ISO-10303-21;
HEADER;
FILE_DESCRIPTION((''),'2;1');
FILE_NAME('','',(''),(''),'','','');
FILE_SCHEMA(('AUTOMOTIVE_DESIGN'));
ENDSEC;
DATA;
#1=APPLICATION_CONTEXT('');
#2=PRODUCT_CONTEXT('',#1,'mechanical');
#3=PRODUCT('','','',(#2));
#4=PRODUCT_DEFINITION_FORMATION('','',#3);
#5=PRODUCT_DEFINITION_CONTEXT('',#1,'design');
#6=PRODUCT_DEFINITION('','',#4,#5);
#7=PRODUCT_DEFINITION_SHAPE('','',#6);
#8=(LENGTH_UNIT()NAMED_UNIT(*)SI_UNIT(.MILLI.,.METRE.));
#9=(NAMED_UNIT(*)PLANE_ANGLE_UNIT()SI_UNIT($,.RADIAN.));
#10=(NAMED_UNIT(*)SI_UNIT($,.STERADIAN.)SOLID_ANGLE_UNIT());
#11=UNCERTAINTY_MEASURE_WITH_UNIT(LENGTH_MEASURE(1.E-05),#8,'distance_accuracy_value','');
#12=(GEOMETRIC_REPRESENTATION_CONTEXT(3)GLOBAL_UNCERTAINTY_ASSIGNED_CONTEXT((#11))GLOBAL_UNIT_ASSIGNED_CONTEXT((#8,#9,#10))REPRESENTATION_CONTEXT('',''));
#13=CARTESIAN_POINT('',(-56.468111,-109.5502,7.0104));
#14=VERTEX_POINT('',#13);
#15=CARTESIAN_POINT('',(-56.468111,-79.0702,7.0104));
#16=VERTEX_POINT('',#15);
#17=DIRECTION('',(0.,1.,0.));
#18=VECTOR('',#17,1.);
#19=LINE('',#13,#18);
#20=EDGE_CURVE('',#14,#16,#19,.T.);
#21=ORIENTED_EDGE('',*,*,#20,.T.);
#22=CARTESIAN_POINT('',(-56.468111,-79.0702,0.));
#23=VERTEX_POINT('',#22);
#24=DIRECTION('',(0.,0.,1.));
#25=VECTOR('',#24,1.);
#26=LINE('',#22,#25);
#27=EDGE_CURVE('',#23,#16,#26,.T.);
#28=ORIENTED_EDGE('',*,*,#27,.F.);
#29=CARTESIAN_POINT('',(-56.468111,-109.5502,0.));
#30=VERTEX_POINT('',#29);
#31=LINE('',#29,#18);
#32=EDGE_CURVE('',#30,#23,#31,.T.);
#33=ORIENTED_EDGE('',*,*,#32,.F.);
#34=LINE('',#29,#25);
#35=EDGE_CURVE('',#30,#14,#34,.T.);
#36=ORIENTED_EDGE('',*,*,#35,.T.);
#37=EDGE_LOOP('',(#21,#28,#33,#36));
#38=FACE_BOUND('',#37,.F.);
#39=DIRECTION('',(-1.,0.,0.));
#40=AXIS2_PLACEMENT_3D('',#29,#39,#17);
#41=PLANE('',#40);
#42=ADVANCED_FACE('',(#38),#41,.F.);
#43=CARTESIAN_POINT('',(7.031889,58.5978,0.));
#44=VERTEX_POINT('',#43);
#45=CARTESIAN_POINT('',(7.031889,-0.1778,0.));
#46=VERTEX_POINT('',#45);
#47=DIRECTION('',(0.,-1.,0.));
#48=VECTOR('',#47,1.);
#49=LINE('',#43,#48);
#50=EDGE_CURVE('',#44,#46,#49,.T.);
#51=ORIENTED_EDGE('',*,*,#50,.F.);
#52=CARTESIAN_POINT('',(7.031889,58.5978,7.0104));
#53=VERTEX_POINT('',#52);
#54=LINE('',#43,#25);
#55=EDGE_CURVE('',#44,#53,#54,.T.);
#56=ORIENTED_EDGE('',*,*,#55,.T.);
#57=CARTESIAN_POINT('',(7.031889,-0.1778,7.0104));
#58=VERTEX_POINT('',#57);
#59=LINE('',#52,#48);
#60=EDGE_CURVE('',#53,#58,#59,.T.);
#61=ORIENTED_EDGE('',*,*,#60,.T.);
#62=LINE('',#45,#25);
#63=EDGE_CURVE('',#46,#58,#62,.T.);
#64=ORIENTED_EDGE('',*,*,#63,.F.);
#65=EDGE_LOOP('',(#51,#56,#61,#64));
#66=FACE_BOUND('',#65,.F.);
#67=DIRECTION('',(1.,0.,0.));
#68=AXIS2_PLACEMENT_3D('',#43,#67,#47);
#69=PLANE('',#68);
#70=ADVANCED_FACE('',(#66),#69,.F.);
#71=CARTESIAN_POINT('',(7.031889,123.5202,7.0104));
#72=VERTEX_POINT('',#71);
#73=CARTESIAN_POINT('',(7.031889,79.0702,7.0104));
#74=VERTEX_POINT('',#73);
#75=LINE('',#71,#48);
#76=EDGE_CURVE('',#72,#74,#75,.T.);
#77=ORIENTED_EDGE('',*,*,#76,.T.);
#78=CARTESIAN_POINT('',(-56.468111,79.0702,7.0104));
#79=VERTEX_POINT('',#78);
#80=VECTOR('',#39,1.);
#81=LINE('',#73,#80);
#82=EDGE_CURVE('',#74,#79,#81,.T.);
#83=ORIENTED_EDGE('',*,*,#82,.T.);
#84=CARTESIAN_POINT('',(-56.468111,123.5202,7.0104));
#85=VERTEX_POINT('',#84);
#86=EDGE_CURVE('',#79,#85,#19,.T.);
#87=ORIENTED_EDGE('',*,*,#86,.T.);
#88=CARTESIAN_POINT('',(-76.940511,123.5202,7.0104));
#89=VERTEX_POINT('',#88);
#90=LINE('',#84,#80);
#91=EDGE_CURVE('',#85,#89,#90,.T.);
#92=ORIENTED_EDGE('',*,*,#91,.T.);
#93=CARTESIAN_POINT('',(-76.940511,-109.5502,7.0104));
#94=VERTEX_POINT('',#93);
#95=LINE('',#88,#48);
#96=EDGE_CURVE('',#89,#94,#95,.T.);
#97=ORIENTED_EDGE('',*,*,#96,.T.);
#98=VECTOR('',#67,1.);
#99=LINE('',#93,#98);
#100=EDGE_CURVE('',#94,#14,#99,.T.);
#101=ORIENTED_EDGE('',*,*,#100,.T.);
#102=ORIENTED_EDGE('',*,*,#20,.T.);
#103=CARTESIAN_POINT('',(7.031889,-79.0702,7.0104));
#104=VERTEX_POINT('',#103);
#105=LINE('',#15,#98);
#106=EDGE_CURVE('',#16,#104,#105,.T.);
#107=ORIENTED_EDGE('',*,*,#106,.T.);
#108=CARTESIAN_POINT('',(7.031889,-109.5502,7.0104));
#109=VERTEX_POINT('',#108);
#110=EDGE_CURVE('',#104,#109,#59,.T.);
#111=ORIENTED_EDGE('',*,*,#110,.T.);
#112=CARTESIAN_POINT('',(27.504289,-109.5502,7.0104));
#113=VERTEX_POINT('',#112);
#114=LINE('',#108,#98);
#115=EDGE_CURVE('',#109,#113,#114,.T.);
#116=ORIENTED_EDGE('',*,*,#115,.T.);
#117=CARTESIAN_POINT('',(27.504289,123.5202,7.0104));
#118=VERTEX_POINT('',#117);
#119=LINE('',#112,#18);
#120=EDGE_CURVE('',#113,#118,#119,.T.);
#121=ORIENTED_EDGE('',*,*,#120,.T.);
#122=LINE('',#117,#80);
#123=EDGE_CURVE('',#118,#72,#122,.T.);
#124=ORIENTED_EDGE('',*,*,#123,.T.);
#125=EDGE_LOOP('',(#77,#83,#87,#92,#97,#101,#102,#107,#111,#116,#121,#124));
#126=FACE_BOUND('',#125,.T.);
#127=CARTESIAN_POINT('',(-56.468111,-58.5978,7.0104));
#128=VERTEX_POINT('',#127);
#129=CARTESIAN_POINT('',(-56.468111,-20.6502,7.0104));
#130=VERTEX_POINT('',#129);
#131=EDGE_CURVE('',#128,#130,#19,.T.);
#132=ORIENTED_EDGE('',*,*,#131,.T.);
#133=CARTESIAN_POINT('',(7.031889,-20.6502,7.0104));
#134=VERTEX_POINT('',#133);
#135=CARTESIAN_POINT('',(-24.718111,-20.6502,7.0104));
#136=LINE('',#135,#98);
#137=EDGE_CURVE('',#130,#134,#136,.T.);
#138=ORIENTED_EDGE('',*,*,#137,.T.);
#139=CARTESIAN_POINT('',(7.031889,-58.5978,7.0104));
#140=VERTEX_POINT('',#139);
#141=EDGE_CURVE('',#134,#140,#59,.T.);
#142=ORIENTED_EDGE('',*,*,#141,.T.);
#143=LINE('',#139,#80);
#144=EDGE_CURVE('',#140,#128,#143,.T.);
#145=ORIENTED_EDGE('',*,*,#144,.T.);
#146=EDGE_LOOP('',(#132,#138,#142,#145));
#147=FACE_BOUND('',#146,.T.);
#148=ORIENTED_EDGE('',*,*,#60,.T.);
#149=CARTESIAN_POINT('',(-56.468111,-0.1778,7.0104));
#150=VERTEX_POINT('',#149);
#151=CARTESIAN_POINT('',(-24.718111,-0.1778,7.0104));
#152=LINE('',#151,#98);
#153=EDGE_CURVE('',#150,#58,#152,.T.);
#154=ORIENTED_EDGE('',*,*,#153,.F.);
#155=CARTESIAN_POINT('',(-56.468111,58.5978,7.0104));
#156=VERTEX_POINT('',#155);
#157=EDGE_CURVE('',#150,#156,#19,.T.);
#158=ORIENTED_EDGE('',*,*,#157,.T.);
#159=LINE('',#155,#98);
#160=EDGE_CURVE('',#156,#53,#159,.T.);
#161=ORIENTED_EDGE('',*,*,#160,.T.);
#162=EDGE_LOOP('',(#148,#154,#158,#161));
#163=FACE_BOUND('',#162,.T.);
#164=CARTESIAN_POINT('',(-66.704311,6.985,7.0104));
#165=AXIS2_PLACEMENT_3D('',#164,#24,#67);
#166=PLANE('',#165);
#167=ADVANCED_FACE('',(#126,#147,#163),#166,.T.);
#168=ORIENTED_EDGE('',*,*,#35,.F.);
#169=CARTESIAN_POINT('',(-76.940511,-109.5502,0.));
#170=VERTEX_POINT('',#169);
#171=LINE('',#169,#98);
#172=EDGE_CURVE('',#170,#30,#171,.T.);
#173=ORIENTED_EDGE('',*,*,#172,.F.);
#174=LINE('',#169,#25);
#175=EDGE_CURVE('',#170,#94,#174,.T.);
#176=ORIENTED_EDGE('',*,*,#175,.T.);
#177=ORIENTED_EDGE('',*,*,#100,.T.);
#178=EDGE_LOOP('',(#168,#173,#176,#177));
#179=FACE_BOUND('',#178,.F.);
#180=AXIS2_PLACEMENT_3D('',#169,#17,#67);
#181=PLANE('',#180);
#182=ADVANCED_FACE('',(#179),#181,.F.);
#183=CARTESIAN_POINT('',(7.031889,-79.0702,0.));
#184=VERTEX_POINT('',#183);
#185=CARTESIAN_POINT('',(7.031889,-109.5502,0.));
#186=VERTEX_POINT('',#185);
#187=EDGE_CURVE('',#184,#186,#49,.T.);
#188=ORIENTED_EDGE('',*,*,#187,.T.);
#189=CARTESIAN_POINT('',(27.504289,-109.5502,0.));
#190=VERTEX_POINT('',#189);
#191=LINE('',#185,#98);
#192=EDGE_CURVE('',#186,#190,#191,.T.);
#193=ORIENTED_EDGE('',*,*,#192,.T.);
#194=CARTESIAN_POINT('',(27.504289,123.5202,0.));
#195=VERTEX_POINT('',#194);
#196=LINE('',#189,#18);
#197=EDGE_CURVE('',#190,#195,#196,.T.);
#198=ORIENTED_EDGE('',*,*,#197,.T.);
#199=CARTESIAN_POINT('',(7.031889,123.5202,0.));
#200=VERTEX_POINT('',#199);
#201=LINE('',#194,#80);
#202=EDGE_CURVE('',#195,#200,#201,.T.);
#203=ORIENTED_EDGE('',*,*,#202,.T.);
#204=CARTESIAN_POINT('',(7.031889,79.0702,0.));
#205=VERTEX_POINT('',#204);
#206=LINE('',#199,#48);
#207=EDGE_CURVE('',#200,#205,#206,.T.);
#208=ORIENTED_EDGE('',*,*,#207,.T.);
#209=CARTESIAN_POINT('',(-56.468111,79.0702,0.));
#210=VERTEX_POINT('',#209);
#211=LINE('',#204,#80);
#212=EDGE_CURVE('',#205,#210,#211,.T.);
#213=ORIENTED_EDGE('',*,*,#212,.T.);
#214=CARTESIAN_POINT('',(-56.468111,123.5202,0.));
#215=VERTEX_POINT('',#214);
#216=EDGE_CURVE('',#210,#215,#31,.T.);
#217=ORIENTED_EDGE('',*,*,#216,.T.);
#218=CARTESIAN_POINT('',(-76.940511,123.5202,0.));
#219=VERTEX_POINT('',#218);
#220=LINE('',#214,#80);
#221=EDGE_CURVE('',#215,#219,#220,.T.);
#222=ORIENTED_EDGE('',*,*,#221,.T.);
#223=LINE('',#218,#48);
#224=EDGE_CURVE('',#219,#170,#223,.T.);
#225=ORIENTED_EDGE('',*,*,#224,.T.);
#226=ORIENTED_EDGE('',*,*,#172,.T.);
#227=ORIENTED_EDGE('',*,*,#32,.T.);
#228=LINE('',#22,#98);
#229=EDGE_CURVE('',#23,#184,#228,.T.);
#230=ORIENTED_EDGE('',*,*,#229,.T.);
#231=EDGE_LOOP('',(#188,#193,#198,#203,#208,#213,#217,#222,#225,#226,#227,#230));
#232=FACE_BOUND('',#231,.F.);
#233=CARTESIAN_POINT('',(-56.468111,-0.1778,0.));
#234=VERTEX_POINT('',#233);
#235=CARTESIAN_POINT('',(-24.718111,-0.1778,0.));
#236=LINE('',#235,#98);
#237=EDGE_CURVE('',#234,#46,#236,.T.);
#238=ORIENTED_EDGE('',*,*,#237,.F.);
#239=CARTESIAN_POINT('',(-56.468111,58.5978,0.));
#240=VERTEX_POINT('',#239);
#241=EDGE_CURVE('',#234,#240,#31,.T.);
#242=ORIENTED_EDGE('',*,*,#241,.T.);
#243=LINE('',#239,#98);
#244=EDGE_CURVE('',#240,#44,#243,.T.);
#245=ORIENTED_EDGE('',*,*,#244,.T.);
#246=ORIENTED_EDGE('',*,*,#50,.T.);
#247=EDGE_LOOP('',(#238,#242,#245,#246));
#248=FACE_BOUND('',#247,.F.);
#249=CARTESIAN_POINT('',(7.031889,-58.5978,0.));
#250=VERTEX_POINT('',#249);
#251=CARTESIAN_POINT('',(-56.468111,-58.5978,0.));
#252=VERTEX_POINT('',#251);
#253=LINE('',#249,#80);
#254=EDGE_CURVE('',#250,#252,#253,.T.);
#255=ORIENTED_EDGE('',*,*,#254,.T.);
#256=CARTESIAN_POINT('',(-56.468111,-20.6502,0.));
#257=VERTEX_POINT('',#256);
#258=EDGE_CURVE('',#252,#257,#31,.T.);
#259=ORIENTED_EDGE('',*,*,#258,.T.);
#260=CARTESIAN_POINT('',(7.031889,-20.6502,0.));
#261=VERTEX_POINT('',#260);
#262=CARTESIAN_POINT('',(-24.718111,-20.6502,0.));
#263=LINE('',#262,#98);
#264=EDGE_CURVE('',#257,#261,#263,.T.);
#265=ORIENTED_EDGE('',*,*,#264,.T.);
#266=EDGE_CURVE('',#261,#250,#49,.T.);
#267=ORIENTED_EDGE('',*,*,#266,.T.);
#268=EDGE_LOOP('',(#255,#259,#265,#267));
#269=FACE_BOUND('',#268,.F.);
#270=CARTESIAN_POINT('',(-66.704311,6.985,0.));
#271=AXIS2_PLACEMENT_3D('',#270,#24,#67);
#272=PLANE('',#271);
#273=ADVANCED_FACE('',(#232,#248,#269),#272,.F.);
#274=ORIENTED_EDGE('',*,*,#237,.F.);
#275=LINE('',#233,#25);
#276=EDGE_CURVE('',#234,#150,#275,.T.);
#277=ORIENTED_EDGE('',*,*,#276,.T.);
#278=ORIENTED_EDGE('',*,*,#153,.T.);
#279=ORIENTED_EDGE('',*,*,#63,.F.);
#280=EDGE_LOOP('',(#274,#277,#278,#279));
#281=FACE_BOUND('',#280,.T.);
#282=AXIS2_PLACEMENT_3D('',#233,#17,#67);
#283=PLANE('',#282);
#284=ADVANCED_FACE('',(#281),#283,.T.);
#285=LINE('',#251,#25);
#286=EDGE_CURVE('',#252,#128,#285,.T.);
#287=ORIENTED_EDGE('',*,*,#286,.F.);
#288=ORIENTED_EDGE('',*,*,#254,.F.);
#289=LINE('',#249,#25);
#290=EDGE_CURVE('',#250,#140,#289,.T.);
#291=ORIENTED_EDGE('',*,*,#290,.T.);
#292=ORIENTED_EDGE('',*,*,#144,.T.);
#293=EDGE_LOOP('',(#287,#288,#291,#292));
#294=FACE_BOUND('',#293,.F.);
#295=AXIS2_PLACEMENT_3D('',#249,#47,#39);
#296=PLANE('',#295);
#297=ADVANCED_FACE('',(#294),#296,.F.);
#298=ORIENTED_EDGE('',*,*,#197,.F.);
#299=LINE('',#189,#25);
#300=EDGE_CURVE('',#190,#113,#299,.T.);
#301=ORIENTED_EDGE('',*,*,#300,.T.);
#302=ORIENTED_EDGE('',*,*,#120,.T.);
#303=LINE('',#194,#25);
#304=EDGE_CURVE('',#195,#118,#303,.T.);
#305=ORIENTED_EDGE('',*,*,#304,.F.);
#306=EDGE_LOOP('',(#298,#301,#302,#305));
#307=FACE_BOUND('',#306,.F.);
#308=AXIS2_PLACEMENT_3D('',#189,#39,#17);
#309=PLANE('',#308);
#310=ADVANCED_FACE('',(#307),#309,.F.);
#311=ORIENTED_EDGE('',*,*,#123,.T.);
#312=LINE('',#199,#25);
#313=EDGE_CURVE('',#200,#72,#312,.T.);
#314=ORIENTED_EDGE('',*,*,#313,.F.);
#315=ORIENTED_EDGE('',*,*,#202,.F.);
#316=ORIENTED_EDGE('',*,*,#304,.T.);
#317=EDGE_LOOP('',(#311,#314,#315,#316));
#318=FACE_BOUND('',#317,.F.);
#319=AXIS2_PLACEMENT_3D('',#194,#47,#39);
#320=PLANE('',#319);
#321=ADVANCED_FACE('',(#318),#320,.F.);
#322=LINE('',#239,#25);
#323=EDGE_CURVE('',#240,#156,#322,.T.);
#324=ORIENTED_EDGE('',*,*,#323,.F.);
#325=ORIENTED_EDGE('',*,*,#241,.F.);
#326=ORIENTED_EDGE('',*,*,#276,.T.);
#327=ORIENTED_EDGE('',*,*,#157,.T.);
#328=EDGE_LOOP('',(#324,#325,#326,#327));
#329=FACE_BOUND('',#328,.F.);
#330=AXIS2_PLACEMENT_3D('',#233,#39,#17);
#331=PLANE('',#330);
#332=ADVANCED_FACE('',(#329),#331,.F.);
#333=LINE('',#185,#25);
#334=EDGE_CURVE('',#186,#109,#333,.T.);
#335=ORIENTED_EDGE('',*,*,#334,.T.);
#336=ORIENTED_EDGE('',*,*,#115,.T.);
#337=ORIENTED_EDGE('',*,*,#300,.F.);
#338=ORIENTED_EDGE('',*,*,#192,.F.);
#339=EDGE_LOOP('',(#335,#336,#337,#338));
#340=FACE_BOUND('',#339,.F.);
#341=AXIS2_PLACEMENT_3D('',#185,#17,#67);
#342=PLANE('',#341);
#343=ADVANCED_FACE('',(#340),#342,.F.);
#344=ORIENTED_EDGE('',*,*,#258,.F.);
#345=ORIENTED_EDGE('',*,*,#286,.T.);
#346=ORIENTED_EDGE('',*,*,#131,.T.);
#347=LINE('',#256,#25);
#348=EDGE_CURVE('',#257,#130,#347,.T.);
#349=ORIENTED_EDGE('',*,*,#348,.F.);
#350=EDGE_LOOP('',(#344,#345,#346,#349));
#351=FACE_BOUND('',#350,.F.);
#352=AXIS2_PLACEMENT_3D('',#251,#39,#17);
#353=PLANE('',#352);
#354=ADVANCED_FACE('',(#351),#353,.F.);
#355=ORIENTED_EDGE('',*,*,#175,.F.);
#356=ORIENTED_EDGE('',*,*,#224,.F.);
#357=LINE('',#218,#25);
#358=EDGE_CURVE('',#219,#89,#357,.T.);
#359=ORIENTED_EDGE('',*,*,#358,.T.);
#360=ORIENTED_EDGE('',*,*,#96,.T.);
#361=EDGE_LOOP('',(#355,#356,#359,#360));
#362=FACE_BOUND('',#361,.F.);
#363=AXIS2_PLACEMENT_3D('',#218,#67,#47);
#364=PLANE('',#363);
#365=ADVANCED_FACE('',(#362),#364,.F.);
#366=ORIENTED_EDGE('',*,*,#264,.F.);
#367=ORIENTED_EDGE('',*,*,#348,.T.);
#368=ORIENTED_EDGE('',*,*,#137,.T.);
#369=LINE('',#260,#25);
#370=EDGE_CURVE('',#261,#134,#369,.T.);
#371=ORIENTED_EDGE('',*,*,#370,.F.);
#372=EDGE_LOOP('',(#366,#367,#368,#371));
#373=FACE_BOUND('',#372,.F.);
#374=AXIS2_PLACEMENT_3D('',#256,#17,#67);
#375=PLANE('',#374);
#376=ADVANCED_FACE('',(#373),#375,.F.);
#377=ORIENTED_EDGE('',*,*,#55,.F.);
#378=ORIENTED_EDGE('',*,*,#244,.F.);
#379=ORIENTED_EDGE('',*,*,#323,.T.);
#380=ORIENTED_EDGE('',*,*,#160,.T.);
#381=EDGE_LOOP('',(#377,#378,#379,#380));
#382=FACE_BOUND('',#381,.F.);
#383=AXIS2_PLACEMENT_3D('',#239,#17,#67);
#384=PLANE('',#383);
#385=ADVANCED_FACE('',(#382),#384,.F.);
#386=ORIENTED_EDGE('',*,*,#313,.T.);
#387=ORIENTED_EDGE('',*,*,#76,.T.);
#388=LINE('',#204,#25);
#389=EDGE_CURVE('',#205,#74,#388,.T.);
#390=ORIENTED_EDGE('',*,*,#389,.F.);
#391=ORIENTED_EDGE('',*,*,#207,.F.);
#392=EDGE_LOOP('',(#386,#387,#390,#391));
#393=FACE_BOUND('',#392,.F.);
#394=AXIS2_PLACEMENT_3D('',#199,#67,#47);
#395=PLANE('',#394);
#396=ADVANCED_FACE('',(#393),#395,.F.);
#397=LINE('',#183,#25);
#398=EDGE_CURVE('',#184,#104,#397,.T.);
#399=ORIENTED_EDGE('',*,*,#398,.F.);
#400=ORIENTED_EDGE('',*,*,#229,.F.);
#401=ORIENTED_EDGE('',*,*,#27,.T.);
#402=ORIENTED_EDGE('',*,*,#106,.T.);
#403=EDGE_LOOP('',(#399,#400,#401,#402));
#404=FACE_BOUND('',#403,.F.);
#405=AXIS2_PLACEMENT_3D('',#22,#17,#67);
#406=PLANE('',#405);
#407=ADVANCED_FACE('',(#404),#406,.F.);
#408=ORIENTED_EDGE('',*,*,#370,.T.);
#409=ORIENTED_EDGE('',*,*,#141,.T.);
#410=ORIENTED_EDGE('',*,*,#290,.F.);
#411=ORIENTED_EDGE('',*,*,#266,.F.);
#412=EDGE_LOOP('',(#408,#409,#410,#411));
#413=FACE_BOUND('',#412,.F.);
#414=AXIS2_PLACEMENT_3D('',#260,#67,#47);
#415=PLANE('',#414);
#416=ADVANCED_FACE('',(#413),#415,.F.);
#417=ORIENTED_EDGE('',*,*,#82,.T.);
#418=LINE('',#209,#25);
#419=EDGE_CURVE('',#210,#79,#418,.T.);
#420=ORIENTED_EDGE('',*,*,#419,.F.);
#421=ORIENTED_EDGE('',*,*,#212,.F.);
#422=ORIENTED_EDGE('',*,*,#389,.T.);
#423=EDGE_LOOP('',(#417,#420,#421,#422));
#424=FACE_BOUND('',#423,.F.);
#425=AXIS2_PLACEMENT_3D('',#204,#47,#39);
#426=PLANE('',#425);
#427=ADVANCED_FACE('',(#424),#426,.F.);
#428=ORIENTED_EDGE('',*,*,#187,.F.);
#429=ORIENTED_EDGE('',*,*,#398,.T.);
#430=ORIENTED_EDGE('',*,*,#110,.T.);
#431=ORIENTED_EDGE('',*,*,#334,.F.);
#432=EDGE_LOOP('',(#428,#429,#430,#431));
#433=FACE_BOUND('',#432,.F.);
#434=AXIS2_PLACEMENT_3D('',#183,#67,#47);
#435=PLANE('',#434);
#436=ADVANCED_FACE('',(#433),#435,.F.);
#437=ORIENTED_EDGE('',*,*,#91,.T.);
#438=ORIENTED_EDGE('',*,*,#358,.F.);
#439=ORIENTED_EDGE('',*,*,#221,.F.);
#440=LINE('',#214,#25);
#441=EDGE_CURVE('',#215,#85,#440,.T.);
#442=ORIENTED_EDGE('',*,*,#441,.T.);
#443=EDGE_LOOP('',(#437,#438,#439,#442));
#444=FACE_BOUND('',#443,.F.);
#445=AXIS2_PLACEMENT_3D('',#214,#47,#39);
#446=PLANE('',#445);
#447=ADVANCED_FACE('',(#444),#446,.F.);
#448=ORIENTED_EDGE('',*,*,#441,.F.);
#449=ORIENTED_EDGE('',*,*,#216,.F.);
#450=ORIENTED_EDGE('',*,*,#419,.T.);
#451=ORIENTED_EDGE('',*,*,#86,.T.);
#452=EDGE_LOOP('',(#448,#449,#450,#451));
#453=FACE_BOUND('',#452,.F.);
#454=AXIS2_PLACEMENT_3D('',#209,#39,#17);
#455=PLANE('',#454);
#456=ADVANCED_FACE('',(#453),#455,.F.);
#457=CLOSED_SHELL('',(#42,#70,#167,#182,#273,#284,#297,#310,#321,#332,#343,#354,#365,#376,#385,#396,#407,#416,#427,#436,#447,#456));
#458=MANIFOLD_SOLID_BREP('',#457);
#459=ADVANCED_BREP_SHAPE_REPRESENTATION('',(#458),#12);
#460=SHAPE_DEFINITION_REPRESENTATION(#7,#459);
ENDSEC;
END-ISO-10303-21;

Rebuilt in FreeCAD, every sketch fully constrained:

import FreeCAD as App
import Part
import Sketcher
from FreeCAD import Vector
Q = App.Units.Quantity

doc = App.newDocument("Part")
params = doc.addObject("Spreadsheet::Sheet", "Params")
for row, (alias, value) in enumerate([
    ("sketch1_width", "2.5 in"),
    ("sketch1_height", "1.2 in"),
    ("sketch1_height2", "1.75 in"),
    ("sketch1_width2", "0.806 in"),
    ("sketch1_height3", "9.176 in"),
    ("pad1_length", "0.276 in"),
], start=1):
    params.set(f"A{row}", alias)
    params.set(f"B{row}", "=" + value)
    params.setAlias(f"B{row}", alias)

body = doc.addObject("PartDesign::Body", "Body")

sketch1 = doc.addObject("Sketcher::SketchObject", "Sketch")
body.addObject(sketch1)
sketch1.AttachmentSupport = (doc.XY_Plane, [""])
sketch1.MapMode = "FlatFace"
sketch1.addGeometry([
    Part.LineSegment(Vector(-56, 124, 0), Vector(-77, 124, 0)),
    Part.LineSegment(Vector(-77, 124, 0), Vector(-77, -110, 0)),
    Part.LineSegment(Vector(-77, -110, 0), Vector(-56, -110, 0)),
    Part.LineSegment(Vector(-56, -110, 0), Vector(-56, -79, 0)),
    Part.LineSegment(Vector(-56, -79, 0), Vector(7, -79, 0)),
    Part.LineSegment(Vector(7, -79, 0), Vector(7, -110, 0)),
    Part.LineSegment(Vector(7, -110, 0), Vector(28, -110, 0)),
    Part.LineSegment(Vector(28, -110, 0), Vector(28, 124, 0)),
    Part.LineSegment(Vector(28, 124, 0), Vector(7, 124, 0)),
    Part.LineSegment(Vector(7, 124, 0), Vector(7, 79, 0)),
    Part.LineSegment(Vector(7, 79, 0), Vector(-56, 79, 0)),
    Part.LineSegment(Vector(-56, 79, 0), Vector(-56, 124, 0)),
    Part.LineSegment(Vector(-56, -59, 0), Vector(-56, -21, 0)),
    Part.LineSegment(Vector(-56, -21, 0), Vector(7, -21, 0)),
    Part.LineSegment(Vector(7, -21, 0), Vector(7, -59, 0)),
    Part.LineSegment(Vector(7, -59, 0), Vector(-56, -59, 0)),
    Part.LineSegment(Vector(-56, 0, 0), Vector(-56, 59, 0)),
    Part.LineSegment(Vector(-56, 59, 0), Vector(7, 59, 0)),
    Part.LineSegment(Vector(7, 59, 0), Vector(7, 0, 0)),
    Part.LineSegment(Vector(7, 0, 0), Vector(-56, 0, 0)),
], False)
sketch1.addConstraint([
    Sketcher.Constraint("Coincident", 0, 2, 1, 1),
    Sketcher.Constraint("Coincident", 1, 2, 2, 1),
    Sketcher.Constraint("Coincident", 2, 2, 3, 1),
    Sketcher.Constraint("Coincident", 3, 2, 4, 1),
    Sketcher.Constraint("Coincident", 4, 2, 5, 1),
    Sketcher.Constraint("Coincident", 5, 2, 6, 1),
    Sketcher.Constraint("Coincident", 6, 2, 7, 1),
    Sketcher.Constraint("Coincident", 7, 2, 8, 1),
    Sketcher.Constraint("Coincident", 8, 2, 9, 1),
    Sketcher.Constraint("Coincident", 9, 2, 10, 1),
    Sketcher.Constraint("Coincident", 10, 2, 11, 1),
    Sketcher.Constraint("Coincident", 11, 2, 0, 1),
    Sketcher.Constraint("Coincident", 12, 2, 13, 1),
    Sketcher.Constraint("Coincident", 13, 2, 14, 1),
    Sketcher.Constraint("Coincident", 14, 2, 15, 1),
    Sketcher.Constraint("Coincident", 15, 2, 12, 1),
    Sketcher.Constraint("Coincident", 16, 2, 17, 1),
    Sketcher.Constraint("Coincident", 17, 2, 18, 1),
    Sketcher.Constraint("Coincident", 18, 2, 19, 1),
    Sketcher.Constraint("Coincident", 19, 2, 16, 1),
    Sketcher.Constraint("Horizontal", 0),
    Sketcher.Constraint("Vertical", 1),
    Sketcher.Constraint("Horizontal", 2),
    Sketcher.Constraint("Vertical", 3),
    Sketcher.Constraint("Horizontal", 4),
    Sketcher.Constraint("Vertical", 5),
    Sketcher.Constraint("Horizontal", 6),
    Sketcher.Constraint("Vertical", 7),
    Sketcher.Constraint("Horizontal", 8),
    Sketcher.Constraint("Vertical", 9),
    Sketcher.Constraint("Horizontal", 10),
    Sketcher.Constraint("Vertical", 11),
    Sketcher.Constraint("Vertical", 12),
    Sketcher.Constraint("Horizontal", 13),
    Sketcher.Constraint("Vertical", 14),
    Sketcher.Constraint("Horizontal", 15),
    Sketcher.Constraint("Vertical", 16),
    Sketcher.Constraint("Horizontal", 17),
    Sketcher.Constraint("Vertical", 18),
    Sketcher.Constraint("Horizontal", 19),
    Sketcher.Constraint("Symmetric", 4, 2, 9, 2, -1),
    Sketcher.Constraint("Symmetric", 15, 2, 16, 2, -1),
    Sketcher.Constraint("Horizontal", 2, 2, 5, 2),
    Sketcher.Constraint("Horizontal", 0, 2, 7, 2),
    Sketcher.Constraint("Vertical", 3, 2, 10, 2),
    Sketcher.Constraint("Vertical", 11, 2, 12, 2),
    Sketcher.Constraint("Vertical", 9, 2, 13, 2),
    Sketcher.Constraint("Vertical", 14, 2, 17, 2),
    Sketcher.Constraint("Equal", 2, 6),
    Sketcher.Constraint("DistanceX", 4, 1, 4, 2, Q("2.5 in")),
    Sketcher.Constraint("DistanceY", 3, 1, 3, 2, Q("1.2 in")),
    Sketcher.Constraint("DistanceY", 9, 2, 9, 1, Q("1.75 in")),
    Sketcher.Constraint("DistanceY", 3, 2, 12, 2, Q("2.3 in")),
    Sketcher.Constraint("DistanceY", 14, 2, 18, 2, Q("2.3 in")),
    Sketcher.Constraint("DistanceX", 0, 2, 0, 1, Q("0.806 in")),
    Sketcher.Constraint("DistanceY", 1, 2, 1, 1, Q("9.176 in")),
    Sketcher.Constraint("DistanceY", 12, 1, 12, 2, Q("1.494 in")),
    Sketcher.Constraint("DistanceX", 0, 2, -1, 1, Q("76.940511 mm")),
])
sketch1.setExpression("Constraints[49]", "Params.sketch1_width")
sketch1.setExpression("Constraints[50]", "Params.sketch1_height")
sketch1.setExpression("Constraints[51]", "Params.sketch1_height2")
sketch1.setExpression("Constraints[54]", "Params.sketch1_width2")
sketch1.setExpression("Constraints[55]", "Params.sketch1_height3")
pad1 = doc.addObject("PartDesign::Pad", "Pad")
body.addObject(pad1)
pad1.Profile = sketch1
pad1.setExpression("Length", "Params.pad1_length")

doc.recompute()
